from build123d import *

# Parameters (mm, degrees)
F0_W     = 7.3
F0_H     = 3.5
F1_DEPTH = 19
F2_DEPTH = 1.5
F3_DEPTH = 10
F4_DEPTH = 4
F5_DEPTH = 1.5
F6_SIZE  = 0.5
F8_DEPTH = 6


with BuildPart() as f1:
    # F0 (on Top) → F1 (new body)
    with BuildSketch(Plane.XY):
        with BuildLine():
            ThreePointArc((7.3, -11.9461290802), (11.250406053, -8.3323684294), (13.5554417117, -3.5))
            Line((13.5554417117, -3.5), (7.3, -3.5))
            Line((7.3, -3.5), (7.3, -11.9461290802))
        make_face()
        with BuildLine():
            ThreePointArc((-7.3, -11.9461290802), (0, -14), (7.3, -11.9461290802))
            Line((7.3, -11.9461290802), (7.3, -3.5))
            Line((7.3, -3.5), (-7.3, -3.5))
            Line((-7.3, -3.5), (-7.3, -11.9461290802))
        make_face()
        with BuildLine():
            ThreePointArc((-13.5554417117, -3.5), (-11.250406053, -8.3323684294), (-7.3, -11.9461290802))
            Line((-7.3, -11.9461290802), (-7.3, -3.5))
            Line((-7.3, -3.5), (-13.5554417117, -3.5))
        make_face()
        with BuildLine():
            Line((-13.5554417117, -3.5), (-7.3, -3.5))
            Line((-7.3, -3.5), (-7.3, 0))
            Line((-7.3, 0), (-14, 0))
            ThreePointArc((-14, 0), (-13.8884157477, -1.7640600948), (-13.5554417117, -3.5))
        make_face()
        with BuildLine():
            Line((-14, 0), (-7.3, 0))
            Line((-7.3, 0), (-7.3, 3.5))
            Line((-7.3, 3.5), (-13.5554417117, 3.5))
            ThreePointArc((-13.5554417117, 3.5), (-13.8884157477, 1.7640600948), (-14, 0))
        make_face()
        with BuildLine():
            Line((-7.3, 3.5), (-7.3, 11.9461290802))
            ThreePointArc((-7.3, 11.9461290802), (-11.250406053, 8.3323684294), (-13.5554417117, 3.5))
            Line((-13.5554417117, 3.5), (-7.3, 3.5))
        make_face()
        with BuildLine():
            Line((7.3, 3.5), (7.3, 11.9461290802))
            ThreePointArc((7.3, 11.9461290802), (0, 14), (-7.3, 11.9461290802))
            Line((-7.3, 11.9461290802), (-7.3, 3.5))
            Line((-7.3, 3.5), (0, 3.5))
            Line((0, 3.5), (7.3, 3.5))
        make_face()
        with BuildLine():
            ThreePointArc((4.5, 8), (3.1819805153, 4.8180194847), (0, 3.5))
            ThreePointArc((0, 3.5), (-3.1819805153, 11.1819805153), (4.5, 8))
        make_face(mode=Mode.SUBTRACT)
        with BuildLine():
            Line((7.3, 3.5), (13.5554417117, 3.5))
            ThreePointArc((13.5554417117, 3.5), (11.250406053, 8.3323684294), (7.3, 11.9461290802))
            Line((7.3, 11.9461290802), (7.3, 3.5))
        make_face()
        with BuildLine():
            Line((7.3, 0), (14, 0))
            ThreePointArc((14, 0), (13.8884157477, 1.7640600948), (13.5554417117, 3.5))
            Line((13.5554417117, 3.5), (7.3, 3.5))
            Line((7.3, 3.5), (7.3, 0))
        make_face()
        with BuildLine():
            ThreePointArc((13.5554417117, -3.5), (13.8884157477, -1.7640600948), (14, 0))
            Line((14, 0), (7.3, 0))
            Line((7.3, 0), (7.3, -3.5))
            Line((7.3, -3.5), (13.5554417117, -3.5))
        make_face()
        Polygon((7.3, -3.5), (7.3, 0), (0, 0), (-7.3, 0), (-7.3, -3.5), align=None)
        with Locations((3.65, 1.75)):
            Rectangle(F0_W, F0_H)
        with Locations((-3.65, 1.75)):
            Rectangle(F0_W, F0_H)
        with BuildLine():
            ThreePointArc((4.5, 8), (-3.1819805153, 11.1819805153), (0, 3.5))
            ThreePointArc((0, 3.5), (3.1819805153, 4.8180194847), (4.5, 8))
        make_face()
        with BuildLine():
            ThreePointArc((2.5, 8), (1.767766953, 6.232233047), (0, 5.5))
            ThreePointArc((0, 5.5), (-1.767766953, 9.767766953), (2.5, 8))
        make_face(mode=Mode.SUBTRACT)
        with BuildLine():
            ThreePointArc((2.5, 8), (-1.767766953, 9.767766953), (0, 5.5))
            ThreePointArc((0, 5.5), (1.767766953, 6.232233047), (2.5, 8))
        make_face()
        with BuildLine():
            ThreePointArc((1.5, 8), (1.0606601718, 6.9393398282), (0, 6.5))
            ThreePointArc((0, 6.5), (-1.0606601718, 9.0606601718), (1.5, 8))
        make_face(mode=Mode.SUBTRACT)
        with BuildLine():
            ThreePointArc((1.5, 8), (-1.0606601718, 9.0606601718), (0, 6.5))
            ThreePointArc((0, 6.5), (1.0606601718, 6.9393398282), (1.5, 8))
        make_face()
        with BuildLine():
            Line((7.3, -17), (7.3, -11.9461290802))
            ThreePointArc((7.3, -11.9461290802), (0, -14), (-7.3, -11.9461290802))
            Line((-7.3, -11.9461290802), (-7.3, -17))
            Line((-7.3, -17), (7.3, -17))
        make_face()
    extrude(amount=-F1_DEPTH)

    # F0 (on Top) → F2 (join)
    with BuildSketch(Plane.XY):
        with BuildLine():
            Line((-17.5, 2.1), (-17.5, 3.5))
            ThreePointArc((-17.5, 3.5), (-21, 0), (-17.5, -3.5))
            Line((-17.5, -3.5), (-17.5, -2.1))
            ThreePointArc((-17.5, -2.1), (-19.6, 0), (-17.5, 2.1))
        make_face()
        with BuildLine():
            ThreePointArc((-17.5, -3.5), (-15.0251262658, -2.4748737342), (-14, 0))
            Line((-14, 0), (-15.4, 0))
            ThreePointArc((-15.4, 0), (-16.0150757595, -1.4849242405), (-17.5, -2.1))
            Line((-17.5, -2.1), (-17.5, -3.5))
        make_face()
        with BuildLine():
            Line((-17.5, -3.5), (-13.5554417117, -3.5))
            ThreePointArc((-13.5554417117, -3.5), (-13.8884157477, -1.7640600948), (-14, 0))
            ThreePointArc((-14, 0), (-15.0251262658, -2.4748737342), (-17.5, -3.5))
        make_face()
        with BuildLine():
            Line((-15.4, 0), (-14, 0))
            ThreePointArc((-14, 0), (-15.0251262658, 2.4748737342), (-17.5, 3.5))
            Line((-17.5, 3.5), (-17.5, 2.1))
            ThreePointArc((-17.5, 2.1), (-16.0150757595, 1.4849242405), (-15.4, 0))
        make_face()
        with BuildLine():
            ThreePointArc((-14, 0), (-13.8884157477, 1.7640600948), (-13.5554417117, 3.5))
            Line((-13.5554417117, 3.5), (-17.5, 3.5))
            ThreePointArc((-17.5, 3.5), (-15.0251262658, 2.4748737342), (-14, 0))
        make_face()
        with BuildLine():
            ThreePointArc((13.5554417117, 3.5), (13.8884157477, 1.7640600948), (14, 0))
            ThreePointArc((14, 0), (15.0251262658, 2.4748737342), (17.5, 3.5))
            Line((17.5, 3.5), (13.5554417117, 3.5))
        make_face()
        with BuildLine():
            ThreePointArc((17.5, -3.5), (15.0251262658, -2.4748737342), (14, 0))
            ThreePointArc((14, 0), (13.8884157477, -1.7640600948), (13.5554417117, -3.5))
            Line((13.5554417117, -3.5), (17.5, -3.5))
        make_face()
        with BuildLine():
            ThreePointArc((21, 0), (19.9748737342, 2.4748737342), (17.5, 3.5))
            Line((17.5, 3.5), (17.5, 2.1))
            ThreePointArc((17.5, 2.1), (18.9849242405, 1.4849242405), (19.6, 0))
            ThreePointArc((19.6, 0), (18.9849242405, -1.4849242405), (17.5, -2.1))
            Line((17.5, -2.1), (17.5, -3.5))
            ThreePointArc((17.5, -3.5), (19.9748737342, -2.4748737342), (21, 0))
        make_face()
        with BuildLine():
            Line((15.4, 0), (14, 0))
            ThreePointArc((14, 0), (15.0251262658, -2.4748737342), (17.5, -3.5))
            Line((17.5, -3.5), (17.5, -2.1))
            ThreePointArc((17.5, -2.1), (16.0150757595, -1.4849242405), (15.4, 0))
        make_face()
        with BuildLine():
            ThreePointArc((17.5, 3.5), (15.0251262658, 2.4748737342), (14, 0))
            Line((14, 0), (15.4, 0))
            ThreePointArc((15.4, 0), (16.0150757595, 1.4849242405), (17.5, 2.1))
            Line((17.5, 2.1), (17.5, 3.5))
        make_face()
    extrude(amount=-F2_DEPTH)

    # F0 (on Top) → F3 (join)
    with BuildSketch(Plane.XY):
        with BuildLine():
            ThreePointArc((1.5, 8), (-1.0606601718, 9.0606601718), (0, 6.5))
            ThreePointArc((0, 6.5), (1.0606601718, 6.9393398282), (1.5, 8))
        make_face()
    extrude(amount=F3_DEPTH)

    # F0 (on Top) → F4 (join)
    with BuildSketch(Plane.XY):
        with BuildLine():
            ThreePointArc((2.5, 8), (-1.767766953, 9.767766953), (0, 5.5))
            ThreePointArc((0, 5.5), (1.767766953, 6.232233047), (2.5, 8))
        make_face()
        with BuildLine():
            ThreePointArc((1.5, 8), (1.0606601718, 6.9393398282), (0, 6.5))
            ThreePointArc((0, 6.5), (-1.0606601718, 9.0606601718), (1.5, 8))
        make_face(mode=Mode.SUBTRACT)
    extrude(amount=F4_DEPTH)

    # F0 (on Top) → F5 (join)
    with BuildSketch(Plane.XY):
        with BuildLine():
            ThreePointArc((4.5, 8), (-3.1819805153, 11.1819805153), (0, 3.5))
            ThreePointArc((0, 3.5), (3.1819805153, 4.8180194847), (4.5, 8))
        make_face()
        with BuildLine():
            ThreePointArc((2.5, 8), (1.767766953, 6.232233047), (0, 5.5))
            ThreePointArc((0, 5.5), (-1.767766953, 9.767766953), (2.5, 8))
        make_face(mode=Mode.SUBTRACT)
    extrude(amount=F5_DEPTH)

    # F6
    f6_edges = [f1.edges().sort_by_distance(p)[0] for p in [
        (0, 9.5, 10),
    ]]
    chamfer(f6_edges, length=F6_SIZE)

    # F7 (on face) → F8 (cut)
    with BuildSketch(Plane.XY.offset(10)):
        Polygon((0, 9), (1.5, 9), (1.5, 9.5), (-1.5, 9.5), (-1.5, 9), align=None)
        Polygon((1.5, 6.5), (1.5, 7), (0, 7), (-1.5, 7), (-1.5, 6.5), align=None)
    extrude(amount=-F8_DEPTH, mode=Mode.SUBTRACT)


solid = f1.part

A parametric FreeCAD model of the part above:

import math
import FreeCAD as App
import Part
import Sketcher
from FreeCAD import Vector
Q = App.Units.Quantity


def edges_at(feature, points):
    """Names of the edges that pass closest to the given points."""
    edges = feature.Shape.Edges
    near = lambda p: min(range(len(edges)), key=lambda i: edges[i].distToShape(Part.Vertex(*p))[0])
    return sorted({f"Edge{near(p) + 1}" for p in points})

doc = App.newDocument("Part")
body = doc.addObject("PartDesign::Body", "Body")

# Sketch on XY plane
sketch1 = body.newObject("Sketcher::SketchObject", "Sketch")
sketch1.AttachmentSupport = (doc.getObject("XY_Plane"), [""])
sketch1.MapMode = "FlatFace"
sketch1.addGeometry(Part.ArcOfCircle(Part.Circle(Vector(0, 0, 0), Vector(0, 0, 1), 14), math.radians(-59), math.radians(-14)), False)
sketch1.addGeometry(Part.ArcOfCircle(Part.Circle(Vector(0, 0, 0), Vector(0, 0, 1), 14), math.radians(-14.48), math.radians(0)), False)
sketch1.addGeometry(Part.ArcOfCircle(Part.Circle(Vector(0, 0, 0), Vector(0, 0, 1), 14), math.radians(0), math.radians(14.48)), False)
sketch1.addGeometry(Part.ArcOfCircle(Part.Circle(Vector(0, 0, 0), Vector(0, 0, 1), 14), math.radians(14), math.radians(59)), False)
sketch1.addGeometry(Part.ArcOfCircle(Part.Circle(Vector(0, 0, 0), Vector(0, 0, 1), 14), math.radians(59), math.radians(121)), False)
sketch1.addGeometry(Part.ArcOfCircle(Part.Circle(Vector(0, 0, 0), Vector(0, 0, 1), 14), math.radians(121), math.radians(166)), False)
sketch1.addGeometry(Part.ArcOfCircle(Part.Circle(Vector(0, 0, 0), Vector(0, 0, 1), 14), math.radians(165.52), math.radians(180)), False)
sketch1.addGeometry(Part.ArcOfCircle(Part.Circle(Vector(0, 0, 0), Vector(0, 0, 1), 14), math.radians(180), math.radians(194.48)), False)
sketch1.addGeometry(Part.ArcOfCircle(Part.Circle(Vector(0, 0, 0), Vector(0, 0, 1), 14), math.radians(-166), math.radians(-121)), False)
sketch1.addGeometry(Part.LineSegment(Vector(-7.3, -11.9, 0), Vector(-7.3, -17, 0)), False)
sketch1.addGeometry(Part.LineSegment(Vector(-7.3, -17, 0), Vector(7.3, -17, 0)), False)
sketch1.addGeometry(Part.LineSegment(Vector(7.3, -17, 0), Vector(7.3, -11.9, 0)), False)
sketch1.addConstraint(Sketcher.Constraint("Tangent", 0, 2, 1, 1))
sketch1.addConstraint(Sketcher.Constraint("Tangent", 1, 2, 2, 1))
sketch1.addConstraint(Sketcher.Constraint("Tangent", 2, 2, 3, 1))
sketch1.addConstraint(Sketcher.Constraint("Tangent", 3, 2, 4, 1))
sketch1.addConstraint(Sketcher.Constraint("Tangent", 4, 2, 5, 1))
sketch1.addConstraint(Sketcher.Constraint("Tangent", 5, 2, 6, 1))
sketch1.addConstraint(Sketcher.Constraint("Tangent", 6, 2, 7, 1))
sketch1.addConstraint(Sketcher.Constraint("Tangent", 7, 2, 8, 1))
sketch1.addConstraint(Sketcher.Constraint("Coincident", 8, 2, 9, 1))
sketch1.addConstraint(Sketcher.Constraint("Coincident", 9, 2, 10, 1))
sketch1.addConstraint(Sketcher.Constraint("Coincident", 10, 2, 11, 1))
sketch1.addConstraint(Sketcher.Constraint("Coincident", 11, 2, 0, 1))
sketch1.addConstraint(Sketcher.Constraint("Vertical", 9))
sketch1.addConstraint(Sketcher.Constraint("Horizontal", 10))
sketch1.addConstraint(Sketcher.Constraint("Vertical", 11))
sketch1.addConstraint(Sketcher.Constraint("Coincident", 0, 3, -1, 1))
sketch1.addConstraint(Sketcher.Constraint("Coincident", 2, 3, -1, 1))
sketch1.addConstraint(Sketcher.Constraint("Coincident", 4, 3, -1, 1))
sketch1.addConstraint(Sketcher.Constraint("Coincident", 6, 3, -1, 1))
sketch1.addConstraint(Sketcher.Constraint("Coincident", 8, 3, -1, 1))
sketch1.addConstraint(Sketcher.Constraint("PointOnObject", 1, 2, -1))
sketch1.addConstraint(Sketcher.Constraint("PointOnObject", 6, 2, -1))
sketch1.addConstraint(Sketcher.Constraint("Horizontal", 3, 2, 4, 2))
sketch1.addConstraint(Sketcher.Constraint("Horizontal", 2, 2, 5, 2))
sketch1.addConstraint(Sketcher.Constraint("Horizontal", 0, 2, 7, 2))
sketch1.addConstraint(Sketcher.Constraint("Horizontal", 8, 2, 11, 2))
sketch1.addConstraint(Sketcher.Constraint("Vertical", 0, 2, 2, 2))
sketch1.addConstraint(Sketcher.Constraint("Vertical", 4, 2, 8, 2))
sketch1.addConstraint(Sketcher.Constraint("Radius", 0, Q("14 mm")))
sketch1.addConstraint(Sketcher.Constraint("DistanceX", 10, 1, 10, 2, Q("14.6 mm")))
sketch1.addConstraint(Sketcher.Constraint("DistanceY", 9, 2, -1, 1, Q("17 mm")))
sketch1.addConstraint(Sketcher.Constraint("DistanceY", 0, 2, 2, 2, Q("7 mm")))
pad1 = body.newObject("PartDesign::Pad", "Pad")
pad1.Profile = sketch1
pad1.Length = 19
pad1.Reversed = True

# Sketch on XY plane
sketch2 = body.newObject("Sketcher::SketchObject", "Sketch001")
sketch2.AttachmentSupport = (doc.getObject("XY_Plane"), [""])
sketch2.MapMode = "FlatFace"
sketch2.addGeometry(Part.ArcOfCircle(Part.Circle(Vector(-17.5, 0, 0), Vector(0, 0, 1), 3.5), math.radians(90), math.radians(270)), False)
sketch2.addGeometry(Part.LineSegment(Vector(-17.5, -3.5, 0), Vector(-13.6, -3.5, 0)), False)
sketch2.addGeometry(Part.ArcOfCircle(Part.Circle(Vector(0, 0, 0), Vector(0, 0, 1), 14), math.radians(180), math.radians(194.48)), False)
sketch2.addGeometry(Part.ArcOfCircle(Part.Circle(Vector(0, 0, 0), Vector(0, 0, 1), 14), math.radians(165.52), math.radians(180)), False)
sketch2.addGeometry(Part.LineSegment(Vector(-13.6, 3.5, 0), Vector(-17.5, 3.5, 0)), False)
sketch2.addGeometry(Part.ArcOfCircle(Part.Circle(Vector(-17.5, 0, 0), Vector(0, 0, 1), 2.1), math.radians(-90), math.radians(0)), False)
sketch2.addGeometry(Part.ArcOfCircle(Part.Circle(Vector(-17.5, 0, 0), Vector(0, 0, 1), 2.1), math.radians(90), math.radians(270)), False)
sketch2.addGeometry(Part.ArcOfCircle(Part.Circle(Vector(-17.5, 0, 0), Vector(0, 0, 1), 2.1), math.radians(0), math.radians(90)), False)
sketch2.addGeometry(Part.ArcOfCircle(Part.Circle(Vector(0, 0, 0), Vector(0, 0, 1), 14), math.radians(0), math.radians(14.48)), False)
sketch2.addGeometry(Part.ArcOfCircle(Part.Circle(Vector(0, 0, 0), Vector(0, 0, 1), 14), math.radians(-14.48), math.radians(0)), False)
sketch2.addGeometry(Part.LineSegment(Vector(13.6, -3.5, 0), Vector(17.5, -3.5, 0)), False)
sketch2.addGeometry(Part.ArcOfCircle(Part.Circle(Vector(17.5, 0, 0), Vector(0, 0, 1), 3.5), math.radians(-90), math.radians(0)), False)
sketch2.addGeometry(Part.ArcOfCircle(Part.Circle(Vector(17.5, 0, 0), Vector(0, 0, 1), 3.5), math.radians(0), math.radians(90)), False)
sketch2.addGeometry(Part.LineSegment(Vector(17.5, 3.5, 0), Vector(13.6, 3.5, 0)), False)
sketch2.addGeometry(Part.ArcOfCircle(Part.Circle(Vector(17.5, 0, 0), Vector(0, 0, 1), 2.1), math.radians(90), math.radians(180)), False)
sketch2.addGeometry(Part.ArcOfCircle(Part.Circle(Vector(17.5, 0, 0), Vector(0, 0, 1), 2.1), math.radians(0), math.radians(90)), False)
sketch2.addGeometry(Part.ArcOfCircle(Part.Circle(Vector(17.5, 0, 0), Vector(0, 0, 1), 2.1), math.radians(-90), math.radians(0)), False)
sketch2.addGeometry(Part.ArcOfCircle(Part.Circle(Vector(17.5, 0, 0), Vector(0, 0, 1), 2.1), math.radians(180), math.radians(270)), False)
sketch2.addConstraint(Sketcher.Constraint("Tangent", 0, 2, 1, 1))
sketch2.addConstraint(Sketcher.Constraint("Coincident", 1, 2, 2, 2))
sketch2.addConstraint(Sketcher.Constraint("Tangent", 2, 1, 3, 2))
sketch2.addConstraint(Sketcher.Constraint("Coincident", 3, 1, 4, 1))
sketch2.addConstraint(Sketcher.Constraint("Tangent", 4, 2, 0, 1))
sketch2.addConstraint(Sketcher.Constraint("Tangent", 5, 1, 6, 2))
sketch2.addConstraint(Sketcher.Constraint("Tangent", 6, 1, 7, 2))
sketch2.addConstraint(Sketcher.Constraint("Tangent", 7, 1, 5, 2))
sketch2.addConstraint(Sketcher.Constraint("Tangent", 8, 1, 9, 2))
sketch2.addConstraint(Sketcher.Constraint("Coincident", 9, 1, 10, 1))
sketch2.addConstraint(Sketcher.Constraint("Tangent", 10, 2, 11, 1))
sketch2.addConstraint(Sketcher.Constraint("Tangent", 11, 2, 12, 1))
sketch2.addConstraint(Sketcher.Constraint("Tangent", 12, 2, 13, 1))
sketch2.addConstraint(Sketcher.Constraint("Coincident", 13, 2, 8, 2))
sketch2.addConstraint(Sketcher.Constraint("Tangent", 14, 1, 15, 2))
sketch2.addConstraint(Sketcher.Constraint("Tangent", 15, 1, 16, 2))
sketch2.addConstraint(Sketcher.Constraint("Tangent", 16, 1, 17, 2))
sketch2.addConstraint(Sketcher.Constraint("Tangent", 17, 1, 14, 2))
sketch2.addConstraint(Sketcher.Constraint("Horizontal", 1))
sketch2.addConstraint(Sketcher.Constraint("Horizontal", 4))
sketch2.addConstraint(Sketcher.Constraint("Horizontal", 10))
sketch2.addConstraint(Sketcher.Constraint("Horizontal", 13))
sketch2.addConstraint(Sketcher.Constraint("Coincident", 2, 3, -1, 1))
sketch2.addConstraint(Sketcher.Constraint("Coincident", 8, 3, -1, 1))
sketch2.addConstraint(Sketcher.Constraint("Coincident", 5, 3, 0, 3))
sketch2.addConstraint(Sketcher.Constraint("Coincident", 14, 3, 11, 3))
sketch2.addConstraint(Sketcher.Constraint("Equal", 2, 3))
sketch2.addConstraint(Sketcher.Constraint("Equal", 3, 8))
sketch2.addConstraint(Sketcher.Constraint("Equal", 8, 9))
sketch2.addConstraint(Sketcher.Constraint("Equal", 0, 11))
sketch2.addConstraint(Sketcher.Constraint("Equal", 11, 12))
sketch2.addConstraint(Sketcher.Constraint("Equal", 7, 14))
sketch2.addConstraint(Sketcher.Constraint("Equal", 14, 15))
sketch2.addConstraint(Sketcher.Constraint("Symmetric", 0, 3, 11, 3, -1, 1))
sketch2.addConstraint(Sketcher.Constraint("Symmetric", 6, 1, 14, 1, -2))
sketch2.addConstraint(Sketcher.Constraint("PointOnObject", 2, 1, -1))
sketch2.addConstraint(Sketcher.Constraint("PointOnObject", 7, 1, -1))
sketch2.addConstraint(Sketcher.Constraint("PointOnObject", 8, 1, -1))
sketch2.addConstraint(Sketcher.Constraint("PointOnObject", 11, 2, -1))
sketch2.addConstraint(Sketcher.Constraint("PointOnObject", 15, 1, -1))
sketch2.addConstraint(Sketcher.Constraint("PointOnObject", 17, 1, -1))
sketch2.addConstraint(Sketcher.Constraint("Vertical", 4, 2, 5, 1))
sketch2.addConstraint(Sketcher.Constraint("Vertical", 5, 1, 6, 1))
sketch2.addConstraint(Sketcher.Constraint("Vertical", 14, 1, 16, 1))
sketch2.addConstraint(Sketcher.Constraint("Radius", 2, Q("14 mm")))
sketch2.addConstraint(Sketcher.Constraint("Radius", 0, Q("3.5 mm")))
sketch2.addConstraint(Sketcher.Constraint("Radius", 5, Q("2.1 mm")))
sketch2.addConstraint(Sketcher.Constraint("DistanceX", -1, 1, 11, 2, Q("21 mm")))
pad2 = body.newObject("PartDesign::Pad", "Pad001")
pad2.Profile = sketch2
pad2.Length = 1.5
pad2.Reversed = True

# Sketch on XY plane
sketch3 = body.newObject("Sketcher::SketchObject", "Sketch002")
sketch3.AttachmentSupport = (doc.getObject("XY_Plane"), [""])
sketch3.MapMode = "FlatFace"
sketch3.addGeometry(Part.ArcOfCircle(Part.Circle(Vector(0, 8, 0), Vector(0, 0, 1), 1.5), math.radians(0), math.radians(270)), False)
sketch3.addGeometry(Part.ArcOfCircle(Part.Circle(Vector(0, 8, 0), Vector(0, 0, 1), 1.5), math.radians(-90), math.radians(0)), False)
sketch3.addConstraint(Sketcher.Constraint("Tangent", 0, 1, 1, 2))
sketch3.addConstraint(Sketcher.Constraint("Coincident", 1, 1, 0, 2))
sketch3.addConstraint(Sketcher.Constraint("PointOnObject", 0, 3, -2))
sketch3.addConstraint(Sketcher.Constraint("PointOnObject", 1, 1, -2))
sketch3.addConstraint(Sketcher.Constraint("Horizontal", 1, 3, 0, 1))
sketch3.addConstraint(Sketcher.Constraint("Radius", 0, Q("1.5 mm")))
sketch3.addConstraint(Sketcher.Constraint("DistanceY", -1, 1, 0, 3, Q("8 mm")))
pad3 = body.newObject("PartDesign::Pad", "Pad002")
pad3.Profile = sketch3
pad3.Length = 10

# Sketch on XY plane
sketch4 = body.newObject("Sketcher::SketchObject", "Sketch003")
sketch4.AttachmentSupport = (doc.getObject("XY_Plane"), [""])
sketch4.MapMode = "FlatFace"
sketch4.addGeometry(Part.ArcOfCircle(Part.Circle(Vector(0, 8, 0), Vector(0, 0, 1), 2.5), math.radians(0), math.radians(270)), False)
sketch4.addGeometry(Part.ArcOfCircle(Part.Circle(Vector(0, 8, 0), Vector(0, 0, 1), 2.5), math.radians(-90), math.radians(0)), False)
sketch4.addGeometry(Part.ArcOfCircle(Part.Circle(Vector(0, 8, 0), Vector(0, 0, 1), 1.5), math.radians(0), math.radians(270)), False)
sketch4.addGeometry(Part.ArcOfCircle(Part.Circle(Vector(0, 8, 0), Vector(0, 0, 1), 1.5), math.radians(-90), math.radians(0)), False)
sketch4.addConstraint(Sketcher.Constraint("Tangent", 0, 1, 1, 2))
sketch4.addConstraint(Sketcher.Constraint("Coincident", 1, 1, 0, 2))
sketch4.addConstraint(Sketcher.Constraint("Tangent", 2, 1, 3, 2))
sketch4.addConstraint(Sketcher.Constraint("Coincident", 3, 1, 2, 2))
sketch4.addConstraint(Sketcher.Constraint("Coincident", 2, 3, 0, 3))
sketch4.addConstraint(Sketcher.Constraint("PointOnObject", 0, 3, -2))
sketch4.addConstraint(Sketcher.Constraint("PointOnObject", 1, 1, -2))
sketch4.addConstraint(Sketcher.Constraint("PointOnObject", 3, 1, -2))
sketch4.addConstraint(Sketcher.Constraint("Horizontal", 3, 3, 0, 1))
sketch4.addConstraint(Sketcher.Constraint("Horizontal", 0, 1, 2, 1))
sketch4.addConstraint(Sketcher.Constraint("Radius", 0, Q("2.5 mm")))
sketch4.addConstraint(Sketcher.Constraint("Radius", 2, Q("1.5 mm")))
sketch4.addConstraint(Sketcher.Constraint("DistanceY", -1, 1, 0, 3, Q("8 mm")))
pad4 = body.newObject("PartDesign::Pad", "Pad003")
pad4.Profile = sketch4
pad4.Length = 4

# Sketch on XY plane
sketch5 = body.newObject("Sketcher::SketchObject", "Sketch004")
sketch5.AttachmentSupport = (doc.getObject("XY_Plane"), [""])
sketch5.MapMode = "FlatFace"
sketch5.addGeometry(Part.ArcOfCircle(Part.Circle(Vector(0, 8, 0), Vector(0, 0, 1), 4.5), math.radians(0), math.radians(270)), False)
sketch5.addGeometry(Part.ArcOfCircle(Part.Circle(Vector(0, 8, 0), Vector(0, 0, 1), 4.5), math.radians(-90), math.radians(0)), False)
sketch5.addGeometry(Part.ArcOfCircle(Part.Circle(Vector(0, 8, 0), Vector(0, 0, 1), 2.5), math.radians(0), math.radians(270)), False)
sketch5.addGeometry(Part.ArcOfCircle(Part.Circle(Vector(0, 8, 0), Vector(0, 0, 1), 2.5), math.radians(-90), math.radians(0)), False)
sketch5.addConstraint(Sketcher.Constraint("Tangent", 0, 1, 1, 2))
sketch5.addConstraint(Sketcher.Constraint("Coincident", 1, 1, 0, 2))
sketch5.addConstraint(Sketcher.Constraint("Tangent", 2, 1, 3, 2))
sketch5.addConstraint(Sketcher.Constraint("Coincident", 3, 1, 2, 2))
sketch5.addConstraint(Sketcher.Constraint("Coincident", 2, 3, 0, 3))
sketch5.addConstraint(Sketcher.Constraint("PointOnObject", 0, 3, -2))
sketch5.addConstraint(Sketcher.Constraint("PointOnObject", 1, 1, -2))
sketch5.addConstraint(Sketcher.Constraint("PointOnObject", 3, 1, -2))
sketch5.addConstraint(Sketcher.Constraint("Horizontal", 3, 3, 0, 1))
sketch5.addConstraint(Sketcher.Constraint("Horizontal", 0, 1, 2, 1))
sketch5.addConstraint(Sketcher.Constraint("Radius", 0, Q("4.5 mm")))
sketch5.addConstraint(Sketcher.Constraint("Radius", 2, Q("2.5 mm")))
sketch5.addConstraint(Sketcher.Constraint("DistanceY", -1, 1, 0, 3, Q("8 mm")))
pad5 = body.newObject("PartDesign::Pad", "Pad004")
pad5.Profile = sketch5
pad5.Length = 1.5
doc.recompute()

chamfer = body.newObject("PartDesign::Chamfer", "Chamfer")
chamfer.Base = (pad5, edges_at(pad5, [(-1.061, 9.061, 10)]))
chamfer.Size = 0.5

# Sketch on XY plane
sketch6 = body.newObject("Sketcher::SketchObject", "Sketch005")
sketch6.AttachmentSupport = (doc.getObject("XY_Plane"), [""])
sketch6.MapMode = "FlatFace"
sketch6.AttachmentOffset = App.Placement(Vector(0, 0, 10), App.Rotation())
sketch6.addGeometry(Part.LineSegment(Vector(1.5, 9, 0), Vector(1.5, 9.5, 0)), False)
sketch6.addGeometry(Part.LineSegment(Vector(1.5, 9.5, 0), Vector(-1.5, 9.5, 0)), False)
sketch6.addGeometry(Part.LineSegment(Vector(-1.5, 9.5, 0), Vector(-1.5, 9, 0)), False)
sketch6.addGeometry(Part.LineSegment(Vector(-1.5, 9, 0), Vector(1.5, 9, 0)), False)
sketch6.addGeometry(Part.LineSegment(Vector(1.5, 6.5, 0), Vector(1.5, 7, 0)), False)
sketch6.addGeometry(Part.LineSegment(Vector(1.5, 7, 0), Vector(-1.5, 7, 0)), False)
sketch6.addGeometry(Part.LineSegment(Vector(-1.5, 7, 0), Vector(-1.5, 6.5, 0)), False)
sketch6.addGeometry(Part.LineSegment(Vector(-1.5, 6.5, 0), Vector(1.5, 6.5, 0)), False)
sketch6.addConstraint(Sketcher.Constraint("Coincident", 0, 2, 1, 1))
sketch6.addConstraint(Sketcher.Constraint("Coincident", 1, 2, 2, 1))
sketch6.addConstraint(Sketcher.Constraint("Coincident", 2, 2, 3, 1))
sketch6.addConstraint(Sketcher.Constraint("Coincident", 3, 2, 0, 1))
sketch6.addConstraint(Sketcher.Constraint("Coincident", 4, 2, 5, 1))
sketch6.addConstraint(Sketcher.Constraint("Coincident", 5, 2, 6, 1))
sketch6.addConstraint(Sketcher.Constraint("Coincident", 6, 2, 7, 1))
sketch6.addConstraint(Sketcher.Constraint("Coincident", 7, 2, 4, 1))
sketch6.addConstraint(Sketcher.Constraint("Vertical", 0))
sketch6.addConstraint(Sketcher.Constraint("Horizontal", 1))
sketch6.addConstraint(Sketcher.Constraint("Vertical", 2))
sketch6.addConstraint(Sketcher.Constraint("Horizontal", 3))
sketch6.addConstraint(Sketcher.Constraint("Vertical", 4))
sketch6.addConstraint(Sketcher.Constraint("Horizontal", 5))
sketch6.addConstraint(Sketcher.Constraint("Vertical", 6))
sketch6.addConstraint(Sketcher.Constraint("Horizontal", 7))
sketch6.addConstraint(Sketcher.Constraint("Vertical", 3, 2, 4, 2))
sketch6.addConstraint(Sketcher.Constraint("Vertical", 2, 2, 5, 2))
sketch6.addConstraint(Sketcher.Constraint("Equal", 2, 4))
sketch6.addConstraint(Sketcher.Constraint("DistanceX", 1, 2, 1, 1, Q("3 mm")))
sketch6.addConstraint(Sketcher.Constraint("DistanceY", 0, 1, 0, 2, Q("0.5 mm")))
sketch6.addConstraint(Sketcher.Constraint("DistanceY", -1, 1, 2, 2, Q("9 mm")))
sketch6.addConstraint(Sketcher.Constraint("DistanceY", -1, 1, 4, 2, Q("7 mm")))
sketch6.addConstraint(Sketcher.Constraint("DistanceX", -1, 1, 0, 2, Q("1.5 mm")))
pocket1 = body.newObject("PartDesign::Pocket", "Pocket")
pocket1.Profile = sketch6
pocket1.Length = 6

doc.recompute()
